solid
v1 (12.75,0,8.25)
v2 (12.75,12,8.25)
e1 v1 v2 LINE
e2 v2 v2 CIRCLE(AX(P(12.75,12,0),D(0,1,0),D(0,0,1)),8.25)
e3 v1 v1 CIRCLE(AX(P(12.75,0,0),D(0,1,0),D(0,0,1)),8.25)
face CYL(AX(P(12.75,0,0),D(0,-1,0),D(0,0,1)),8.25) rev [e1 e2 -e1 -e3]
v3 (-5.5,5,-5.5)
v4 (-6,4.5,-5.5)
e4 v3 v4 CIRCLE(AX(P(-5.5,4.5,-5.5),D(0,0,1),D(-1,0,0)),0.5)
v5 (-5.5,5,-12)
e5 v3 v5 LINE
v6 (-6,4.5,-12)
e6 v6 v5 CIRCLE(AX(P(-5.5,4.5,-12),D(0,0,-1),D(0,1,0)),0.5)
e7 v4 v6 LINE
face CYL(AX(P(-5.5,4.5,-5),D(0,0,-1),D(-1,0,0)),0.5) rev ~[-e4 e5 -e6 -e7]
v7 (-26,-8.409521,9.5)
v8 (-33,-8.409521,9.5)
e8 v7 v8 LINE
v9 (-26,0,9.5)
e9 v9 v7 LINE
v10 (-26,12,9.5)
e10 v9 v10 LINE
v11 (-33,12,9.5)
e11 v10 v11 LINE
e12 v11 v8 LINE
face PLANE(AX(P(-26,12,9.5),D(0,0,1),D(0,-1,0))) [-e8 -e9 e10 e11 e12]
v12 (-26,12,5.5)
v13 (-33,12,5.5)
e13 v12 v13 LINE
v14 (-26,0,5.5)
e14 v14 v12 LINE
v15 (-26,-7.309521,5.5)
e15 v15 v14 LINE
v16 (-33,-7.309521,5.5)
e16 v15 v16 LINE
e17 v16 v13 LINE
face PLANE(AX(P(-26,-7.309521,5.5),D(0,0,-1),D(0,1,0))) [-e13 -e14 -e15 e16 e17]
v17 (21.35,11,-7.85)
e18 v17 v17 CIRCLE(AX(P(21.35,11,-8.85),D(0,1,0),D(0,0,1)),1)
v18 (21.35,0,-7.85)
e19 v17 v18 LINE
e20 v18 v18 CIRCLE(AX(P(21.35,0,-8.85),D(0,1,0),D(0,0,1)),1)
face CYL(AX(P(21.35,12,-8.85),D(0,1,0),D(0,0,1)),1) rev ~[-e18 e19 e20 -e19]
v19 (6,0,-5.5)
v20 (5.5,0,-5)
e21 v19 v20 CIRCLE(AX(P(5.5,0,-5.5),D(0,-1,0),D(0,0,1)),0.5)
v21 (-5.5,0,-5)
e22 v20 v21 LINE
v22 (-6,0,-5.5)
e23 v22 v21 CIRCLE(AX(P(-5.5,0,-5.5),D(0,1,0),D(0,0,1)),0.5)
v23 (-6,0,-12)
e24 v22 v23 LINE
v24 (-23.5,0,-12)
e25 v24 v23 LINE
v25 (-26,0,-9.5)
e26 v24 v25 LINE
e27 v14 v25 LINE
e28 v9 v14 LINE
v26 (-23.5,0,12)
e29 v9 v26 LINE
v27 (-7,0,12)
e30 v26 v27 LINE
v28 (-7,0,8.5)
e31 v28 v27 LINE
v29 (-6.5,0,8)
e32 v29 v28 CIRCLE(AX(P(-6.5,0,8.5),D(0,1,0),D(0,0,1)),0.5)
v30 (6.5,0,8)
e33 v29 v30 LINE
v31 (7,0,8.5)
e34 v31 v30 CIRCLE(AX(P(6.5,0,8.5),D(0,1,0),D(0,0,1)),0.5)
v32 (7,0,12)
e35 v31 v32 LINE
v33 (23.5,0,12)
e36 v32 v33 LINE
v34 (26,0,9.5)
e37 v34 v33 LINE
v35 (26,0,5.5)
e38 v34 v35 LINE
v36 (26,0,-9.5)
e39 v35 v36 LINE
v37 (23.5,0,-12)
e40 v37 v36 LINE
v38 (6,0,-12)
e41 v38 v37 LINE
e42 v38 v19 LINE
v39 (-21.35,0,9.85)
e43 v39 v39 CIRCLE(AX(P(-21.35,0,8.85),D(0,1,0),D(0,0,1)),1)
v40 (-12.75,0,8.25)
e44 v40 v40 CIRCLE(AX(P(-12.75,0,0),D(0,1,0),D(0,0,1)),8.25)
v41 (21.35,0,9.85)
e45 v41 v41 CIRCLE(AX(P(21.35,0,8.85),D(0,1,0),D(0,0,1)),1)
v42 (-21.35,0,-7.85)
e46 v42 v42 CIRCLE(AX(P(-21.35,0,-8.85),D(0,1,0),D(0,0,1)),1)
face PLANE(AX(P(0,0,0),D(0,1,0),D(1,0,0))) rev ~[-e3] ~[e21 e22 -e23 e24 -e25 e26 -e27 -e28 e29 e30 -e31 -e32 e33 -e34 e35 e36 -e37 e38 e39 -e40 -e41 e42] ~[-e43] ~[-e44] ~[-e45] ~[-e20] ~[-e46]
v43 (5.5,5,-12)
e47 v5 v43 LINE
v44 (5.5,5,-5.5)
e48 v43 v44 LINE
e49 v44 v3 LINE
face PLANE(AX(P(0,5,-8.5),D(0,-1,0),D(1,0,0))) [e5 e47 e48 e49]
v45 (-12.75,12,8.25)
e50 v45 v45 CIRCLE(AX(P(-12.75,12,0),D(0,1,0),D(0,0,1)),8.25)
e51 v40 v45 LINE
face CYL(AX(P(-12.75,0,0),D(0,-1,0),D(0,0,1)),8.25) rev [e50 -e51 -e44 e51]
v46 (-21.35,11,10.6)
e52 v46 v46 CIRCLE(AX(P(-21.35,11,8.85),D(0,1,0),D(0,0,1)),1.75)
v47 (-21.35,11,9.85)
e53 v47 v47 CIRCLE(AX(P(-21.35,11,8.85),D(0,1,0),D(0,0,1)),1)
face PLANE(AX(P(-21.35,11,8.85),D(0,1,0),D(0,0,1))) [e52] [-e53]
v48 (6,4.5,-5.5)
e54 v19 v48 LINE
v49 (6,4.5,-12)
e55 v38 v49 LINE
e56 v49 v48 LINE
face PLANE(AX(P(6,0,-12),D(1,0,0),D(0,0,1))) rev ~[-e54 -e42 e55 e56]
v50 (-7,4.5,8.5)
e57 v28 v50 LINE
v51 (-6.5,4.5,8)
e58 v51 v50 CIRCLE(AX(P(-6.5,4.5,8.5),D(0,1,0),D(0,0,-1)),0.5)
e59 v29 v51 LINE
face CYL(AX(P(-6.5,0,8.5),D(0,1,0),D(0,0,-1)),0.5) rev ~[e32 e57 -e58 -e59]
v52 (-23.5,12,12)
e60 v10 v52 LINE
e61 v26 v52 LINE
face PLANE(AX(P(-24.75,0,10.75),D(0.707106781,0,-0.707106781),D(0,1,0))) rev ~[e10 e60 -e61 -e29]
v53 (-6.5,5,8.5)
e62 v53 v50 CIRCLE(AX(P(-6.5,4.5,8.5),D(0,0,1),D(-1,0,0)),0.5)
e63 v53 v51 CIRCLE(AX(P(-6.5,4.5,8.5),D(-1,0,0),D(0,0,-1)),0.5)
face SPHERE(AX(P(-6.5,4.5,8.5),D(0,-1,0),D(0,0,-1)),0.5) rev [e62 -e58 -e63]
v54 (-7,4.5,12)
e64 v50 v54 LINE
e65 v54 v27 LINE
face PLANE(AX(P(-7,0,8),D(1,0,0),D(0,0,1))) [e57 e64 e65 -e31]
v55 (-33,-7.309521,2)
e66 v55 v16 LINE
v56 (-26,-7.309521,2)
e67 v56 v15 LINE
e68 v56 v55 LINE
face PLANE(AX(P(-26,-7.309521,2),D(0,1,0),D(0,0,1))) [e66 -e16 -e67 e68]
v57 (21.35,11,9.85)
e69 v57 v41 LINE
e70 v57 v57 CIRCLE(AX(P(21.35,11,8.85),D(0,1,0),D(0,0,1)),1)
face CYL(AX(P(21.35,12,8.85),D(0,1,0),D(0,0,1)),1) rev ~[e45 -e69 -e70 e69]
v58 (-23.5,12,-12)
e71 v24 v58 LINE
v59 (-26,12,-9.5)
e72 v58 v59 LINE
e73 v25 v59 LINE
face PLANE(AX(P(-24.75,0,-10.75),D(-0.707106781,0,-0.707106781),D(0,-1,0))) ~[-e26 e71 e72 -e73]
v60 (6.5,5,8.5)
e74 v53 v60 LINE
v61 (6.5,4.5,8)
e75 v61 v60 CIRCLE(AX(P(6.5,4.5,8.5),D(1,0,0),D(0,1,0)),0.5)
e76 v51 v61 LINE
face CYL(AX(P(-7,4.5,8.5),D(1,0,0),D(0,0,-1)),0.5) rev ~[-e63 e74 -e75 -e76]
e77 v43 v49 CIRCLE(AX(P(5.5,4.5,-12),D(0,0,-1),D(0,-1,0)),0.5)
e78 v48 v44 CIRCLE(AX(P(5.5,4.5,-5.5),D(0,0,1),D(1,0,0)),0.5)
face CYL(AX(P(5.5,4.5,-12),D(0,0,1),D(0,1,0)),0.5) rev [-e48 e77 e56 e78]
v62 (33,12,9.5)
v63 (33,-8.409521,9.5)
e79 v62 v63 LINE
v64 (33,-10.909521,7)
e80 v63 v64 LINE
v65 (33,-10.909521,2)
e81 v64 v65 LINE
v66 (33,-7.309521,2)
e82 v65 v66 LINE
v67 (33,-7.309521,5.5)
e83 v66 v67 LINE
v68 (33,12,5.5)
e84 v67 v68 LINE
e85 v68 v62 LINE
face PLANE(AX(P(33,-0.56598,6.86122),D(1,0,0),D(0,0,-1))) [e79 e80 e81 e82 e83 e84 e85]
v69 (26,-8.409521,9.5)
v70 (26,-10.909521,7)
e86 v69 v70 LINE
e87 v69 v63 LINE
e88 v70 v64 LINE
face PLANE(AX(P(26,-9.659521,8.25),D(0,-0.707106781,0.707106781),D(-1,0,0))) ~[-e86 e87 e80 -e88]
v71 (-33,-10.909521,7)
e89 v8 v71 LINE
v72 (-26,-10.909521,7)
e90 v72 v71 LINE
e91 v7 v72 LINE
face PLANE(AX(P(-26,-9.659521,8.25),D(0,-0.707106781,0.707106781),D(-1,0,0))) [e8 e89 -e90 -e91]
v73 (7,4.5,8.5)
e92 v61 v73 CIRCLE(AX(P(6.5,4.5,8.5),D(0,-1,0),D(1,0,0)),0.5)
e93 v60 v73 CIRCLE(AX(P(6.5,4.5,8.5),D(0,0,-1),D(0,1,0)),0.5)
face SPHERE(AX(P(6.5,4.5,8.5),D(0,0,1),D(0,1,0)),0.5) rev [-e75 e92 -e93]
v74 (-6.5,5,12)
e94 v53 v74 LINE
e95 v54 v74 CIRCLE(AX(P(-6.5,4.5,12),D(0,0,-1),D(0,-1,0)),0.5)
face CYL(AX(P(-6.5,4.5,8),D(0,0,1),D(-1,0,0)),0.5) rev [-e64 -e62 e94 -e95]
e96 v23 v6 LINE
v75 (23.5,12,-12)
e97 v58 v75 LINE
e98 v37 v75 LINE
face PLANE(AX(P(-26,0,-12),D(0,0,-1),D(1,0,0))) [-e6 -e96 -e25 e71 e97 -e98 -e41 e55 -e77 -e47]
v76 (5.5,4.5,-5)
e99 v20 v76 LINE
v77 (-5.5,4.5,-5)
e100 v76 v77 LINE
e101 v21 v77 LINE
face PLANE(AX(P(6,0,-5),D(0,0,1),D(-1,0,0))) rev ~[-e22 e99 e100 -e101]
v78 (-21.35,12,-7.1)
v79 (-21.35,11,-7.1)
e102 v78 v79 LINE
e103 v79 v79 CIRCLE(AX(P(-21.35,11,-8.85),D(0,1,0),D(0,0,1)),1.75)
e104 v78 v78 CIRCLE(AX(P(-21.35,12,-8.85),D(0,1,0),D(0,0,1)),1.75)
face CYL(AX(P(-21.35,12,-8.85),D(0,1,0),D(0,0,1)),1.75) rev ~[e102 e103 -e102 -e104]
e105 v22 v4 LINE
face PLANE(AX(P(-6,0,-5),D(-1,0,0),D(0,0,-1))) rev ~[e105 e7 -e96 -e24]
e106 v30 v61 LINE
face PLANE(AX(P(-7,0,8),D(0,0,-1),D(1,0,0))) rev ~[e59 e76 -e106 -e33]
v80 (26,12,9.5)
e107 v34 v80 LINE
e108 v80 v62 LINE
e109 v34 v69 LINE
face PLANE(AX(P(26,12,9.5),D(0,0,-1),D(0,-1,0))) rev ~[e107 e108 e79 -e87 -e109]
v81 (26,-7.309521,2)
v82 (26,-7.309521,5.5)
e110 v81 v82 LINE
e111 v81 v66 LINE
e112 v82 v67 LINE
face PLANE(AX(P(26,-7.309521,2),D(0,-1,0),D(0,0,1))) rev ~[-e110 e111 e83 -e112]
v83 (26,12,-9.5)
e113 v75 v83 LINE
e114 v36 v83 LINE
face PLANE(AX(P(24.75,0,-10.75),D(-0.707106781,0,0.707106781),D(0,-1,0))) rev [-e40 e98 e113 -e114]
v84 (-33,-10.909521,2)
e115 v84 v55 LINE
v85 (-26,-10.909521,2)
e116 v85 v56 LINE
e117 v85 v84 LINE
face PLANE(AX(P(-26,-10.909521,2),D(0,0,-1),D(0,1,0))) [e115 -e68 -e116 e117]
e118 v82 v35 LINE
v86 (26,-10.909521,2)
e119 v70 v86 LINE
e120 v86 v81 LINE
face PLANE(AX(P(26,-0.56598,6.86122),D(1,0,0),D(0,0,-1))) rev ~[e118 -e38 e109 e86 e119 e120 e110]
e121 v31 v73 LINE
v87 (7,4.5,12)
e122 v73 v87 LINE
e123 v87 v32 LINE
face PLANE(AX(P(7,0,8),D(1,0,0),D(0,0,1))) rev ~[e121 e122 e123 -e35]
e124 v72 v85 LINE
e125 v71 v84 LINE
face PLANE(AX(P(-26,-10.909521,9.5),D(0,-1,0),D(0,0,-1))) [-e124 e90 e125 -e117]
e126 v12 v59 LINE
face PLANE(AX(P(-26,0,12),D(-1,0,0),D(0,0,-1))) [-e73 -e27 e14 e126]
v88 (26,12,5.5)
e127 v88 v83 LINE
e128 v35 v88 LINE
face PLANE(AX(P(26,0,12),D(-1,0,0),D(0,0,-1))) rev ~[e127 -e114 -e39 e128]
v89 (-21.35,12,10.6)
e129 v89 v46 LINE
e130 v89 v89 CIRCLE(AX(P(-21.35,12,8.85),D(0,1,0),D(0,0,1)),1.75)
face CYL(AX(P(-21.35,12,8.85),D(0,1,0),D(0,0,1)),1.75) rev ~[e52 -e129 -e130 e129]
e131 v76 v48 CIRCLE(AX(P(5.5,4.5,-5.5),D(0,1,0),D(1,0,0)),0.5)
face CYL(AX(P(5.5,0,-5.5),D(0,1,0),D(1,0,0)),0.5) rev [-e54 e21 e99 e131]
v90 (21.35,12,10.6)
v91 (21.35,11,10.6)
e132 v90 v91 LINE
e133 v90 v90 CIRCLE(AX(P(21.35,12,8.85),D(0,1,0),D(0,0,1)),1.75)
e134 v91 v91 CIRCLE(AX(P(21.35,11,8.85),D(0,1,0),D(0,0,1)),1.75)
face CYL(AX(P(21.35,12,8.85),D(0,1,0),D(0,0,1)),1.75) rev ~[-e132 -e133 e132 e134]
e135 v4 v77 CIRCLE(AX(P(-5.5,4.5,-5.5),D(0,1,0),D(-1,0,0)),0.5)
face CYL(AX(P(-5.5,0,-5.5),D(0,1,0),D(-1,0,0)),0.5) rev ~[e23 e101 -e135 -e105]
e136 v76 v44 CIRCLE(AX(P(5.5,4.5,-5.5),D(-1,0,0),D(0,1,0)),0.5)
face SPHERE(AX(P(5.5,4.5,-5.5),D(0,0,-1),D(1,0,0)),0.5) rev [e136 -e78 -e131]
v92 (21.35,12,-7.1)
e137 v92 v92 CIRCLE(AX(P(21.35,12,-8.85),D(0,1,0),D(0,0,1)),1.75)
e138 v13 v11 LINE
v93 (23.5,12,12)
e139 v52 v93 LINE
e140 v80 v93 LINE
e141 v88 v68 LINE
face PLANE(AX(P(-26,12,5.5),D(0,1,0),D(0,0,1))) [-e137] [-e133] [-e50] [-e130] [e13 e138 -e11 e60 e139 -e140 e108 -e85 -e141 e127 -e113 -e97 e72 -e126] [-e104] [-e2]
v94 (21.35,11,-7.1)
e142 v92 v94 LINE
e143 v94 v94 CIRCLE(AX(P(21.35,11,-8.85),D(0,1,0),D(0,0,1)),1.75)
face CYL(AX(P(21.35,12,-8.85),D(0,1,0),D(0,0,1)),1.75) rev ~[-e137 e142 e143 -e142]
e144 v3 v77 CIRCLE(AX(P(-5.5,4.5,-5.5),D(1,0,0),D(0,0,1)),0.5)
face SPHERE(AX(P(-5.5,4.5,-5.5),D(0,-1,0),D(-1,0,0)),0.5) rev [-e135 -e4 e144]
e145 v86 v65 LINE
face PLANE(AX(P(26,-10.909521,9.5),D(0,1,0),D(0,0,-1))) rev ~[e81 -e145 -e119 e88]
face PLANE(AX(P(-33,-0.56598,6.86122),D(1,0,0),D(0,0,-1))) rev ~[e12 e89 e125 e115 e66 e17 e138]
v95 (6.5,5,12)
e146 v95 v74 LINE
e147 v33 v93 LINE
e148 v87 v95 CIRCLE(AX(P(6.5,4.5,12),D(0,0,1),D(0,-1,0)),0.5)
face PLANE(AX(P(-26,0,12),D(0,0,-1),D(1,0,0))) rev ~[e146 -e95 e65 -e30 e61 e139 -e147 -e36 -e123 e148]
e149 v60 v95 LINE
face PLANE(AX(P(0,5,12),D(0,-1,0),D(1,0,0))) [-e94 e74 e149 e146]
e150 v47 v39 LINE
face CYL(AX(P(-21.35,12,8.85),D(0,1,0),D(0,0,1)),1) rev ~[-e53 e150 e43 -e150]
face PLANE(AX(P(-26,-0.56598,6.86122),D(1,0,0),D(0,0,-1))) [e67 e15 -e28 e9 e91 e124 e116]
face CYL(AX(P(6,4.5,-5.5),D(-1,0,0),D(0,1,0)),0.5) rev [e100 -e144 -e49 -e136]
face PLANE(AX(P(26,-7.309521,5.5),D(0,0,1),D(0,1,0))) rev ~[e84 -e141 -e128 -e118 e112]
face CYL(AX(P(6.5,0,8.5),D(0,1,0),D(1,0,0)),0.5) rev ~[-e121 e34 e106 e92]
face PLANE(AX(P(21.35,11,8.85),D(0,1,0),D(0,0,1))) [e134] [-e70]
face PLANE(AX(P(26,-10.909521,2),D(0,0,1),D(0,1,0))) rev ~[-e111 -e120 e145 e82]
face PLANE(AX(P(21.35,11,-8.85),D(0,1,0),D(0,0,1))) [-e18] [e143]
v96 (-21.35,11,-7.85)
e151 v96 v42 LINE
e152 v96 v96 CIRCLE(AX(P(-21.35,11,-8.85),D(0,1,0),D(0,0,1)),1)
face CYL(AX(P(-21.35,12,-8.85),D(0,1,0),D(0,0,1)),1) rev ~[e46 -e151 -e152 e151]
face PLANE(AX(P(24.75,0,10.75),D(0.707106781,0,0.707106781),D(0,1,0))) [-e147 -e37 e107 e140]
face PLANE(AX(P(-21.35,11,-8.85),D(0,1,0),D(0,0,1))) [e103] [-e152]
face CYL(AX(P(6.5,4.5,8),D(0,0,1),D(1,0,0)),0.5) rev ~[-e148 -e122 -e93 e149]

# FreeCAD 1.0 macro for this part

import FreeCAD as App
import Part
import Sketcher

V = App.Vector
Q = App.Units.Quantity


def edges_at(feature, points):
    """Names of the edges that pass closest to the given points."""
    edges = feature.Shape.Edges
    near = lambda p: min(range(len(edges)), key=lambda i: edges[i].distToShape(Part.Vertex(*p))[0])
    return sorted({f"Edge{near(p) + 1}" for p in points})


def add_polygon(sketch, points):
    """Adds a closed chain of lines whose ends are joined by coincident constraints."""
    first, n = sketch.GeometryCount, len(points)
    for a, b in zip(points, points[1:] + points[:1]):
        sketch.addGeometry(Part.LineSegment(App.Vector(*a, 0), App.Vector(*b, 0)), False)
    for i in range(n):
        sketch.addConstraint(Sketcher.Constraint("Coincident", first + i, 2, first + (i + 1) % n, 1))

doc = App.newDocument("Part")
body = doc.addObject("PartDesign::Body", "Body")

# Sketch on XZ plane
sketch1 = doc.addObject("Sketcher::SketchObject", "Sketch")
body.addObject(sketch1)
sketch1.AttachmentSupport = (doc.XZ_Plane, [""])
sketch1.MapMode = "FlatFace"
add_polygon(sketch1, [(-26, -12), (-26, 12), (26, 12), (26, -12)])  # lines 0-3
sketch1.addGeometry(Part.Circle(V(-13, 0, 0), V(0, 0, 1), 8), False)  # 4
sketch1.addGeometry(Part.Circle(V(13, 0, 0), V(0, 0, 1), 8), False)  # 5
sketch1.addConstraint(Sketcher.Constraint("Vertical", 0))
sketch1.addConstraint(Sketcher.Constraint("Horizontal", 1))
sketch1.addConstraint(Sketcher.Constraint("Vertical", 2))
sketch1.addConstraint(Sketcher.Constraint("Horizontal", 3))
sketch1.addConstraint(Sketcher.Constraint("Equal", 4, 5))
sketch1.addConstraint(Sketcher.Constraint("Symmetric", 4, 3, 5, 3, -1, 1))
sketch1.addConstraint(Sketcher.Constraint("Symmetric", 0, 2, 2, 2, -1, 1))
sketch1.addConstraint(Sketcher.Constraint("PointOnObject", 4, 3, -1))
sketch1.addConstraint(Sketcher.Constraint("Diameter", 4, Q("16.5 mm")))
sketch1.addConstraint(Sketcher.Constraint("DistanceX", 1, 1, 1, 2, Q("52 mm")))
sketch1.addConstraint(Sketcher.Constraint("DistanceY", 0, 1, 0, 2, Q("24 mm")))
sketch1.addConstraint(Sketcher.Constraint("DistanceX", 4, 3, 5, 3, Q("25.5 mm")))
pad1 = doc.addObject("PartDesign::Pad", "Pad")
body.addObject(pad1)
pad1.Profile = sketch1
pad1.Length = 12
pad1.Reversed = True

# Sketch on XZ plane
sketch2 = doc.addObject("Sketcher::SketchObject", "Sketch001")
body.addObject(sketch2)
sketch2.AttachmentSupport = (doc.XZ_Plane, [""])
sketch2.MapMode = "FlatFace"
sketch2.AttachmentOffset = App.Placement(V(0, 0, -12), App.Rotation())
sketch2.addGeometry(Part.Circle(V(-21.4, -8.8, 0), V(0, 0, 1), 1), False)
sketch2.addGeometry(Part.Circle(V(21.4, -8.8, 0), V(0, 0, 1), 1), False)
sketch2.addGeometry(Part.Circle(V(21.4, 8.8, 0), V(0, 0, 1), 1), False)
sketch2.addGeometry(Part.Circle(V(-21.4, 8.8, 0), V(0, 0, 1), 1), False)
sketch2.addConstraint(Sketcher.Constraint("Equal", 0, 1))
sketch2.addConstraint(Sketcher.Constraint("Equal", 1, 2))
sketch2.addConstraint(Sketcher.Constraint("Equal", 2, 3))
sketch2.addConstraint(Sketcher.Constraint("Symmetric", 0, 3, 2, 3, -1, 1))
sketch2.addConstraint(Sketcher.Constraint("Symmetric", 1, 3, 3, 3, -1, 1))
sketch2.addConstraint(Sketcher.Constraint("Symmetric", 0, 3, 1, 3, -2))
sketch2.addConstraint(Sketcher.Constraint("Diameter", 0, Q("2 mm")))
sketch2.addConstraint(Sketcher.Constraint("DistanceX", 0, 3, 1, 3, Q("42.7 mm")))
sketch2.addConstraint(Sketcher.Constraint("DistanceY", 1, 3, 2, 3, Q("17.7 mm")))
pocket1 = doc.addObject("PartDesign::Pocket", "Pocket")
body.addObject(pocket1)
pocket1.Profile = sketch2
pocket1.Type = "ThroughAll"
pocket1.Reversed = True

# Sketch on XZ plane
sketch3 = doc.addObject("Sketcher::SketchObject", "Sketch002")
body.addObject(sketch3)
sketch3.AttachmentSupport = (doc.XZ_Plane, [""])
sketch3.MapMode = "FlatFace"
sketch3.AttachmentOffset = App.Placement(V(0, 0, -12), App.Rotation())
sketch3.addGeometry(Part.Circle(V(-21.4, -8.8, 0), V(0, 0, 1), 1.8), False)
sketch3.addGeometry(Part.Circle(V(21.4, -8.8, 0), V(0, 0, 1), 1.8), False)
sketch3.addGeometry(Part.Circle(V(21.4, 8.8, 0), V(0, 0, 1), 1.8), False)
sketch3.addGeometry(Part.Circle(V(-21.4, 8.8, 0), V(0, 0, 1), 1.8), False)
sketch3.addConstraint(Sketcher.Constraint("Equal", 0, 1))
sketch3.addConstraint(Sketcher.Constraint("Equal", 1, 2))
sketch3.addConstraint(Sketcher.Constraint("Equal", 2, 3))
sketch3.addConstraint(Sketcher.Constraint("Symmetric", 0, 3, 2, 3, -1, 1))
sketch3.addConstraint(Sketcher.Constraint("Symmetric", 1, 3, 3, 3, -1, 1))
sketch3.addConstraint(Sketcher.Constraint("Symmetric", 0, 3, 1, 3, -2))
sketch3.addConstraint(Sketcher.Constraint("Diameter", 0, Q("3.5 mm")))
sketch3.addConstraint(Sketcher.Constraint("DistanceX", 0, 3, 1, 3, Q("42.7 mm")))
sketch3.addConstraint(Sketcher.Constraint("DistanceY", 1, 3, 2, 3, Q("17.7 mm")))
pocket2 = doc.addObject("PartDesign::Pocket", "Pocket001")
body.addObject(pocket2)
pocket2.Profile = sketch3
pocket2.Length = 1
pocket2.Reversed = True

# Sketch on XZ plane
sketch4 = doc.addObject("Sketcher::SketchObject", "Sketch003")
body.addObject(sketch4)
sketch4.AttachmentSupport = (doc.XZ_Plane, [""])
sketch4.MapMode = "FlatFace"
add_polygon(sketch4, [(-6, -5), (-6, -12), (6, -12), (6, -5)])  # lines 0-3
sketch4.addConstraint(Sketcher.Constraint("Vertical", 0))
sketch4.addConstraint(Sketcher.Constraint("Horizontal", 1))
sketch4.addConstraint(Sketcher.Constraint("Vertical", 2))
sketch4.addConstraint(Sketcher.Constraint("Horizontal", 3))
sketch4.addConstraint(Sketcher.Constraint("DistanceX", 1, 1, 1, 2, Q("12 mm")))
sketch4.addConstraint(Sketcher.Constraint("DistanceY", 0, 2, 0, 1, Q("7 mm")))
sketch4.addConstraint(Sketcher.Constraint("DistanceX", 0, 2, -1, 1, Q("6 mm")))
sketch4.addConstraint(Sketcher.Constraint("DistanceY", 0, 2, -1, 1, Q("12 mm")))
pocket3 = doc.addObject("PartDesign::Pocket", "Pocket002")
body.addObject(pocket3)
pocket3.Profile = sketch4
pocket3.Length = 5
doc.recompute()

fillet = doc.addObject("PartDesign::Fillet", "Fillet")
body.addObject(fillet)
fillet.Base = (pocket3, edges_at(pocket3, [
    (-6, 2.5, -5),
    (6, 5, -8.5),
    (6, 2.5, -5),
    (-6, 5, -8.5),
    (0, 5, -5),
]))
fillet.Radius = 0.5
doc.recompute()

chamfer = doc.addObject("PartDesign::Chamfer", "Chamfer")
body.addObject(chamfer)
chamfer.Base = (fillet, edges_at(fillet, [
    (26, 6, 12),
    (-26, 6, 12),
    (-26, 6, -12),
    (26, 6, -12),
]))
chamfer.Size = 2.5

# Sketch on XZ plane
sketch5 = doc.addObject("Sketcher::SketchObject", "Sketch004")
body.addObject(sketch5)
sketch5.AttachmentSupport = (doc.XZ_Plane, [""])
sketch5.MapMode = "FlatFace"
add_polygon(sketch5, [(-7, 16), (-7, 8), (7, 8), (7, 16)])  # lines 0-3
sketch5.addConstraint(Sketcher.Constraint("Vertical", 0))
sketch5.addConstraint(Sketcher.Constraint("Horizontal", 1))
sketch5.addConstraint(Sketcher.Constraint("Vertical", 2))
sketch5.addConstraint(Sketcher.Constraint("Horizontal", 3))
sketch5.addConstraint(Sketcher.Constraint("DistanceX", 1, 1, 1, 2, Q("14 mm")))
sketch5.addConstraint(Sketcher.Constraint("DistanceY", 0, 2, 0, 1, Q("8 mm")))
sketch5.addConstraint(Sketcher.Constraint("DistanceX", 0, 2, -1, 1, Q("7 mm")))
sketch5.addConstraint(Sketcher.Constraint("DistanceY", -1, 1, 0, 2, Q("8 mm")))
pocket4 = doc.addObject("PartDesign::Pocket", "Pocket003")
body.addObject(pocket4)
pocket4.Profile = sketch5
pocket4.Length = 5
doc.recompute()

fillet2 = doc.addObject("PartDesign::Fillet", "Fillet001")
body.addObject(fillet2)
fillet2.Base = (pocket4, edges_at(pocket4, [
    (-7, 2.5, 8),
    (7, 5, 10),
    (0, 5, 8),
    (-7, 5, 10),
    (7, 2.5, 8),
]))
fillet2.Radius = 0.5

# Sketch on YZ plane
sketch6 = doc.addObject("Sketcher::SketchObject", "Sketch005")
body.addObject(sketch6)
sketch6.AttachmentSupport = (doc.YZ_Plane, [""])
sketch6.MapMode = "FlatFace"
sketch6.AttachmentOffset = App.Placement(V(0, 0, 26), App.Rotation())
add_polygon(sketch6, [(12, 5.5), (12, 9.5), (-10.9, 9.5), (-10.9, 2), (-7.3, 2), (-7.3, 5.5)])  # lines 0-5
sketch6.addConstraint(Sketcher.Constraint("Vertical", 0))
sketch6.addConstraint(Sketcher.Constraint("Horizontal", 1))
sketch6.addConstraint(Sketcher.Constraint("Vertical", 2))
sketch6.addConstraint(Sketcher.Constraint("Horizontal", 3))
sketch6.addConstraint(Sketcher.Constraint("Vertical", 4))
sketch6.addConstraint(Sketcher.Constraint("Horizontal", 5))
sketch6.addConstraint(Sketcher.Constraint("DistanceY", 0, 1, 0, 2, Q("4 mm")))
sketch6.addConstraint(Sketcher.Constraint("DistanceX", 3, 1, 3, 2, Q("3.6 mm")))
sketch6.addConstraint(Sketcher.Constraint("DistanceY", 2, 2, 2, 1, Q("7.5 mm")))
sketch6.addConstraint(Sketcher.Constraint("DistanceX", -1, 1, 0, 2, Q("12 mm")))
sketch6.addConstraint(Sketcher.Constraint("DistanceY", -1, 1, 2, 2, Q("2 mm")))
sketch6.addConstraint(Sketcher.Constraint("DistanceX", 1, 2, 1, 1, Q("22.909521 mm")))
pad2 = doc.addObject("PartDesign::Pad", "Pad001")
body.addObject(pad2)
pad2.Profile = sketch6
pad2.Length = 7

# Sketch on YZ plane
sketch7 = doc.addObject("Sketcher::SketchObject", "Sketch006")
body.addObject(sketch7)
sketch7.AttachmentSupport = (doc.YZ_Plane, [""])
sketch7.MapMode = "FlatFace"
sketch7.AttachmentOffset = App.Placement(V(0, 0, -26), App.Rotation())
add_polygon(sketch7, [(12, 5.5), (12, 9.5), (-10.9, 9.5), (-10.9, 2), (-7.3, 2), (-7.3, 5.5)])  # lines 0-5
sketch7.addConstraint(Sketcher.Constraint("Vertical", 0))
sketch7.addConstraint(Sketcher.Constraint("Horizontal", 1))
sketch7.addConstraint(Sketcher.Constraint("Vertical", 2))
sketch7.addConstraint(Sketcher.Constraint("Horizontal", 3))
sketch7.addConstraint(Sketcher.Constraint("Vertical", 4))
sketch7.addConstraint(Sketcher.Constraint("Horizontal", 5))
sketch7.addConstraint(Sketcher.Constraint("DistanceY", 0, 1, 0, 2, Q("4 mm")))
sketch7.addConstraint(Sketcher.Constraint("DistanceX", 3, 1, 3, 2, Q("3.6 mm")))
sketch7.addConstraint(Sketcher.Constraint("DistanceY", 2, 2, 2, 1, Q("7.5 mm")))
sketch7.addConstraint(Sketcher.Constraint("DistanceX", -1, 1, 0, 2, Q("12 mm")))
sketch7.addConstraint(Sketcher.Constraint("DistanceY", -1, 1, 2, 2, Q("2 mm")))
sketch7.addConstraint(Sketcher.Constraint("DistanceX", 1, 2, 1, 1, Q("22.909521 mm")))
pad3 = doc.addObject("PartDesign::Pad", "Pad002")
body.addObject(pad3)
pad3.Profile = sketch7
pad3.Length = 7
pad3.Reversed = True
doc.recompute()

chamfer2 = doc.addObject("PartDesign::Chamfer", "Chamfer001")
body.addObject(chamfer2)
chamfer2.Base = (pad3, edges_at(pad3, [(29.5, -10.91, 9.5), (-29.5, -10.91, 9.5)]))
chamfer2.Size = 2.5

doc.recompute()
